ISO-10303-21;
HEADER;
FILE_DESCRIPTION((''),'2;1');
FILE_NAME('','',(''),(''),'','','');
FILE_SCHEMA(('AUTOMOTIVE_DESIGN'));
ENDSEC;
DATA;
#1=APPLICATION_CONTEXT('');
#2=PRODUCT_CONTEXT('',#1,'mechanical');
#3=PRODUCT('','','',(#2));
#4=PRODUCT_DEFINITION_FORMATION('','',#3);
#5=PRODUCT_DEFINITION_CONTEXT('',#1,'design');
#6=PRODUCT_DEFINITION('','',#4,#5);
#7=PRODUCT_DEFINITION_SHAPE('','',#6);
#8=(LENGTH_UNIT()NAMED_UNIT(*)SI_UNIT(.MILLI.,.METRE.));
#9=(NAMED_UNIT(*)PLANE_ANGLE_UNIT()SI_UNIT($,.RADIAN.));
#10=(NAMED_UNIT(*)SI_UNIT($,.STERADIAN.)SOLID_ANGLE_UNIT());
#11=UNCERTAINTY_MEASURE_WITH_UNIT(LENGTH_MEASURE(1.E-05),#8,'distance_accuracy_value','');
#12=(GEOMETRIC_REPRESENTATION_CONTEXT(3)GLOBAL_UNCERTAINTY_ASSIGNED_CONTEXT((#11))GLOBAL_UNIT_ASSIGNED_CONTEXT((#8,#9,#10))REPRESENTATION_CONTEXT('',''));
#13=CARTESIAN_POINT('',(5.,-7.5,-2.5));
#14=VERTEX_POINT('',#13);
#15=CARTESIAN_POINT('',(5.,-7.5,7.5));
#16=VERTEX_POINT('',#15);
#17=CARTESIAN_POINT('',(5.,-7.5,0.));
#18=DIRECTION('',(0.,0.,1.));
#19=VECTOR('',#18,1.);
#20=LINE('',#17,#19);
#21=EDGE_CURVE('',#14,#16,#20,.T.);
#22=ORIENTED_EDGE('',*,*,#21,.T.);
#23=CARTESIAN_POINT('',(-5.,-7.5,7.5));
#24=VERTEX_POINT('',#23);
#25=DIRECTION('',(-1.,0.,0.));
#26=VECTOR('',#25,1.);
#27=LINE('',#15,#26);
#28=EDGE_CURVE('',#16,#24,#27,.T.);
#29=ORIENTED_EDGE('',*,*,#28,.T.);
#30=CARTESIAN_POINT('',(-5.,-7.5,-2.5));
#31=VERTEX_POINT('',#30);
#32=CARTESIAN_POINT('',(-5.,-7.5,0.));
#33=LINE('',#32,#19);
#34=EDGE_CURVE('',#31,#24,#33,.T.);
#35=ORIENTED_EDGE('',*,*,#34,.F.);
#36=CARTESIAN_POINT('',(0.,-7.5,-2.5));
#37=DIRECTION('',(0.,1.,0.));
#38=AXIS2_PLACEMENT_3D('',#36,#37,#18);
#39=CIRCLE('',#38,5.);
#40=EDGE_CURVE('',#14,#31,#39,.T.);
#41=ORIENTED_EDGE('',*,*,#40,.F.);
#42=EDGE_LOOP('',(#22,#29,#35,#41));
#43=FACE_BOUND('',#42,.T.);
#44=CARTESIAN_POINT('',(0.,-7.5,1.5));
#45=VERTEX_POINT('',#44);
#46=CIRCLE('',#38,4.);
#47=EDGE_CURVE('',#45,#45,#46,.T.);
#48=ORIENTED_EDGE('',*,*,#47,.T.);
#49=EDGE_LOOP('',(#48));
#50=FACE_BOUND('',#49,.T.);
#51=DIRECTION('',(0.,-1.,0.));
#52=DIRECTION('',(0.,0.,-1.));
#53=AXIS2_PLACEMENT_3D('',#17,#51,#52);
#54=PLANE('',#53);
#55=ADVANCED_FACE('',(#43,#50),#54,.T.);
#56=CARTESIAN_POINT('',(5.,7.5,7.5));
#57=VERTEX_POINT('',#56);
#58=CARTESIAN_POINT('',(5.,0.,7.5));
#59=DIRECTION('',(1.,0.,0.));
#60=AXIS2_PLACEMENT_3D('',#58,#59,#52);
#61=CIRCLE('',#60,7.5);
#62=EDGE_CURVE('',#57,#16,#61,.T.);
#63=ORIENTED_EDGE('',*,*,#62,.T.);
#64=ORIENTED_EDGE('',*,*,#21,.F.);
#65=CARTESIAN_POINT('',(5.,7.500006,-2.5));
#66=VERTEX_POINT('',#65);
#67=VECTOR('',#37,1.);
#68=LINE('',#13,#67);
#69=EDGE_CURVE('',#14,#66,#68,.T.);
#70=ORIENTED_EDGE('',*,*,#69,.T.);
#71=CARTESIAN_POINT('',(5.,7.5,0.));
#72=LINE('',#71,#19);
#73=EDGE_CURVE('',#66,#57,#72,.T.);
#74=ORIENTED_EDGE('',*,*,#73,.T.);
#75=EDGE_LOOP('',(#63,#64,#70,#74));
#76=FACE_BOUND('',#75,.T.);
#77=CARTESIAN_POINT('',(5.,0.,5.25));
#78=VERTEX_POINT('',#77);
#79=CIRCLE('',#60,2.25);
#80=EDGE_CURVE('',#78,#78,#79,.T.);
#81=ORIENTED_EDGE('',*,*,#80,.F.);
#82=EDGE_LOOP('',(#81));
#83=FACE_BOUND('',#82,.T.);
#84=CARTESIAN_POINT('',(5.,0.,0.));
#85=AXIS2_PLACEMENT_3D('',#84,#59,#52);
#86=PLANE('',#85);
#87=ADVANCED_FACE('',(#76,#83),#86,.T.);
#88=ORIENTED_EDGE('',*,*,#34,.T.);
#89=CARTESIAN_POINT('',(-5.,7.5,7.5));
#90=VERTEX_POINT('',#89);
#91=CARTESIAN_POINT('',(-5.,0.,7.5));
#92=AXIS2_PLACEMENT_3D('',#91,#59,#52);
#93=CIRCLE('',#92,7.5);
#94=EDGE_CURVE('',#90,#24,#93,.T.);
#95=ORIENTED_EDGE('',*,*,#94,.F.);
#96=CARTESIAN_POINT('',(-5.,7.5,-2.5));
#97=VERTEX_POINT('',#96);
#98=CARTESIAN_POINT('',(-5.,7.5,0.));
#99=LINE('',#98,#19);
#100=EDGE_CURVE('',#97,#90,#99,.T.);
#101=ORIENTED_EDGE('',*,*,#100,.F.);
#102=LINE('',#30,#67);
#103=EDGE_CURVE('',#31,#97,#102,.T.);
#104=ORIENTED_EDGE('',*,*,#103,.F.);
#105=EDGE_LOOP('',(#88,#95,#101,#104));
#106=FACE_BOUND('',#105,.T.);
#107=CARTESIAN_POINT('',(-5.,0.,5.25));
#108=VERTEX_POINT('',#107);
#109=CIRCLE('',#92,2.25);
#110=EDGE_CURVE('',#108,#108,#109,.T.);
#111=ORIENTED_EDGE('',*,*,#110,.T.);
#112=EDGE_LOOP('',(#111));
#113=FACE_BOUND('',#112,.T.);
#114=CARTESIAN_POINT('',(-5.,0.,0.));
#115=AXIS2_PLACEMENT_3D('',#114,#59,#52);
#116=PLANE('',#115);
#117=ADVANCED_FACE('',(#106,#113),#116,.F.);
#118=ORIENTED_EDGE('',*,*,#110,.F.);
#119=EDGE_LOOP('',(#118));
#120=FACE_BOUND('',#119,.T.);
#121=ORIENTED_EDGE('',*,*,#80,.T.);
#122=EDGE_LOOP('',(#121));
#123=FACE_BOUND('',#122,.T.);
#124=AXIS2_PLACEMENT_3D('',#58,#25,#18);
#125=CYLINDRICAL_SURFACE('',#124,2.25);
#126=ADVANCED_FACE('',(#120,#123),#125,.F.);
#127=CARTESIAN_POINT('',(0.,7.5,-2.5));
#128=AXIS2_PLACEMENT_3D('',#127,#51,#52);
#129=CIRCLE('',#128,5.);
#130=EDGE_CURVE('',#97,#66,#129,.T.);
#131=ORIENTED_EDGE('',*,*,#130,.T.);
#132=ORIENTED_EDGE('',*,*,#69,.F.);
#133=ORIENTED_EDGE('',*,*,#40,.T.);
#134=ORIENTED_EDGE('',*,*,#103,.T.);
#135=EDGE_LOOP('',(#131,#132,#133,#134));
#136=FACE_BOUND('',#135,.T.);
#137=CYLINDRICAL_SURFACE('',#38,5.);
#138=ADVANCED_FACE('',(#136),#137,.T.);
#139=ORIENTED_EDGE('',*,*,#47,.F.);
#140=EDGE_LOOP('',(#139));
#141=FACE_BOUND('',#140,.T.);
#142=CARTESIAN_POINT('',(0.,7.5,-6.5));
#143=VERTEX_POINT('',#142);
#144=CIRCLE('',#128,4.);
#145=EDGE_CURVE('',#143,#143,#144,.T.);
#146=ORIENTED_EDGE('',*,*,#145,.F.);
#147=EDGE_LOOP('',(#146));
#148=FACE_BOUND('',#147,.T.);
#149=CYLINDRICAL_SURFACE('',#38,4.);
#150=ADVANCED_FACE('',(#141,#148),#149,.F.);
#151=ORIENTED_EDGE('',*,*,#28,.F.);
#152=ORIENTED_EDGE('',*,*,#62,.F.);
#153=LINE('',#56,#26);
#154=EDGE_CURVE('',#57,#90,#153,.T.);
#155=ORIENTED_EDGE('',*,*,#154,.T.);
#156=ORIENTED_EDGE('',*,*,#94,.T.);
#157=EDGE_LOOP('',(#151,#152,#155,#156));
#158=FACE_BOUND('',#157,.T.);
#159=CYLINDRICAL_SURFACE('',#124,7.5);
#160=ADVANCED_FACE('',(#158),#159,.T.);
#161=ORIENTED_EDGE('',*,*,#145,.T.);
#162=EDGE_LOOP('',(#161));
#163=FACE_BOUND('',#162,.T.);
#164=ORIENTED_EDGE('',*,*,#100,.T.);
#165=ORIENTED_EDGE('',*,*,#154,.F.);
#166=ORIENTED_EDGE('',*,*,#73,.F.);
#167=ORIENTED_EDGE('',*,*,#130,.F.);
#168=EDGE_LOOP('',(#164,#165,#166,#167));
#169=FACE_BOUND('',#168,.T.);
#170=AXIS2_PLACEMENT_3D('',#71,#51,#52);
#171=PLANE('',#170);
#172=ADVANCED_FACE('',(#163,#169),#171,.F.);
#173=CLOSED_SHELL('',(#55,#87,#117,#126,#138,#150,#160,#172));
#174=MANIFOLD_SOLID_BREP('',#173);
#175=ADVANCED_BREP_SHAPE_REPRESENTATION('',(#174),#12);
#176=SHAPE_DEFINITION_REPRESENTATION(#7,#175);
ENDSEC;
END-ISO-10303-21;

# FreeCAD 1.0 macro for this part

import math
import FreeCAD as App
import Part
import Sketcher
from FreeCAD import Vector

doc = App.newDocument("Part")
body = doc.addObject("PartDesign::Body", "Body")

# Sketch on YZ plane
sketch1 = body.newObject("Sketcher::SketchObject", "Sketch")
sketch1.AttachmentSupport = (doc.getObject("YZ_Plane"), [""])
sketch1.MapMode = "FlatFace"
sketch1.addGeometry([
    Part.LineSegment(Vector(-7.5, 7.5, 0), Vector(-7.5, -7.5, 0)),  # 0
    Part.LineSegment(Vector(-7.5, -7.5, 0), Vector(7.5, -7.5, 0)),  # 1
    Part.LineSegment(Vector(7.5, -7.5, 0), Vector(7.5, 7.5, 0)),  # 2
    Part.ArcOfCircle(Part.Circle(Vector(0, 7.5, 0), Vector(0, 0, 1), 7.5), math.radians(0), math.radians(180)),  # 3
    Part.Circle(Vector(0, 7.5, 0), Vector(0, 0, 1), 2.2),  # 4
], False)
sketch1.addConstraint([
    Sketcher.Constraint("Coincident", 0, 2, 1, 1),
    Sketcher.Constraint("Coincident", 1, 2, 2, 1),
    Sketcher.Constraint("Tangent", 2, 2, 3, 1),
    Sketcher.Constraint("Tangent", 3, 2, 0, 1),
    Sketcher.Constraint("Vertical", 0),
    Sketcher.Constraint("Horizontal", 1),
    Sketcher.Constraint("Vertical", 2),
    Sketcher.Constraint("Coincident", 4, 3, 3, 3),
    Sketcher.Constraint("Symmetric", 0, 2, 2, 2, -1, 1),
    Sketcher.Constraint("Equal", 1, 0),
    Sketcher.Constraint("Diameter", 4, 4.5),
    Sketcher.Constraint("Radius", 3, 7.5),
])
pad1 = body.newObject("PartDesign::Pad", "Pad")
pad1.Profile = sketch1
pad1.Length = 10
pad1.Midplane = True

# Sketch on XZ plane
sketch2 = body.newObject("Sketcher::SketchObject", "Sketch001")
sketch2.AttachmentSupport = (doc.getObject("XZ_Plane"), [""])
sketch2.MapMode = "FlatFace"
sketch2.AttachmentOffset = App.Placement(Vector(0, 0, -7.5), App.Rotation())
sketch2.addGeometry([
    Part.LineSegment(Vector(-5, -10.9, 0), Vector(-5, -2.5, 0)),  # 0
    Part.ArcOfCircle(Part.Circle(Vector(0, -2.5, 0), Vector(0, 0, 1), 5), math.radians(180), math.radians(270)),  # 1
    Part.ArcOfCircle(Part.Circle(Vector(0, -2.5, 0), Vector(0, 0, 1), 5), math.radians(-90), math.radians(0)),  # 2
    Part.LineSegment(Vector(5, -2.5, 0), Vector(5, -10.9, 0)),  # 3
    Part.LineSegment(Vector(5, -10.9, 0), Vector(-5, -10.9, 0)),  # 4
    Part.Circle(Vector(0, -2.5, 0), Vector(0, 0, 1), 4),  # 5
], False)
sketch2.addConstraint([
    Sketcher.Constraint("Tangent", 0, 2, 1, 1),
    Sketcher.Constraint("Tangent", 1, 2, 2, 1),
    Sketcher.Constraint("Tangent", 2, 2, 3, 1),
    Sketcher.Constraint("Coincident", 3, 2, 4, 1),
    Sketcher.Constraint("Coincident", 4, 2, 0, 1),
    Sketcher.Constraint("Vertical", 0),
    Sketcher.Constraint("Vertical", 3),
    Sketcher.Constraint("Horizontal", 4),
    Sketcher.Constraint("Coincident", 5, 3, 1, 3),
    Sketcher.Constraint("Equal", 1, 2),
    Sketcher.Constraint("PointOnObject", 1, 3, -2),
    Sketcher.Constraint("PointOnObject", 1, 2, -2),
    Sketcher.Constraint("Diameter", 5, 8.0),
    Sketcher.Constraint("Radius", 1, 5.0),
    Sketcher.Constraint("DistanceY", 1, 3, -1, 1, 2.5),
    Sketcher.Constraint("DistanceY", 0, 1, 0, 2, 8.419306),
])
pocket1 = body.newObject("PartDesign::Pocket", "Pocket")
pocket1.Profile = sketch2
pocket1.Type = "ThroughAll"
pocket1.Midplane = True

doc.recompute()
